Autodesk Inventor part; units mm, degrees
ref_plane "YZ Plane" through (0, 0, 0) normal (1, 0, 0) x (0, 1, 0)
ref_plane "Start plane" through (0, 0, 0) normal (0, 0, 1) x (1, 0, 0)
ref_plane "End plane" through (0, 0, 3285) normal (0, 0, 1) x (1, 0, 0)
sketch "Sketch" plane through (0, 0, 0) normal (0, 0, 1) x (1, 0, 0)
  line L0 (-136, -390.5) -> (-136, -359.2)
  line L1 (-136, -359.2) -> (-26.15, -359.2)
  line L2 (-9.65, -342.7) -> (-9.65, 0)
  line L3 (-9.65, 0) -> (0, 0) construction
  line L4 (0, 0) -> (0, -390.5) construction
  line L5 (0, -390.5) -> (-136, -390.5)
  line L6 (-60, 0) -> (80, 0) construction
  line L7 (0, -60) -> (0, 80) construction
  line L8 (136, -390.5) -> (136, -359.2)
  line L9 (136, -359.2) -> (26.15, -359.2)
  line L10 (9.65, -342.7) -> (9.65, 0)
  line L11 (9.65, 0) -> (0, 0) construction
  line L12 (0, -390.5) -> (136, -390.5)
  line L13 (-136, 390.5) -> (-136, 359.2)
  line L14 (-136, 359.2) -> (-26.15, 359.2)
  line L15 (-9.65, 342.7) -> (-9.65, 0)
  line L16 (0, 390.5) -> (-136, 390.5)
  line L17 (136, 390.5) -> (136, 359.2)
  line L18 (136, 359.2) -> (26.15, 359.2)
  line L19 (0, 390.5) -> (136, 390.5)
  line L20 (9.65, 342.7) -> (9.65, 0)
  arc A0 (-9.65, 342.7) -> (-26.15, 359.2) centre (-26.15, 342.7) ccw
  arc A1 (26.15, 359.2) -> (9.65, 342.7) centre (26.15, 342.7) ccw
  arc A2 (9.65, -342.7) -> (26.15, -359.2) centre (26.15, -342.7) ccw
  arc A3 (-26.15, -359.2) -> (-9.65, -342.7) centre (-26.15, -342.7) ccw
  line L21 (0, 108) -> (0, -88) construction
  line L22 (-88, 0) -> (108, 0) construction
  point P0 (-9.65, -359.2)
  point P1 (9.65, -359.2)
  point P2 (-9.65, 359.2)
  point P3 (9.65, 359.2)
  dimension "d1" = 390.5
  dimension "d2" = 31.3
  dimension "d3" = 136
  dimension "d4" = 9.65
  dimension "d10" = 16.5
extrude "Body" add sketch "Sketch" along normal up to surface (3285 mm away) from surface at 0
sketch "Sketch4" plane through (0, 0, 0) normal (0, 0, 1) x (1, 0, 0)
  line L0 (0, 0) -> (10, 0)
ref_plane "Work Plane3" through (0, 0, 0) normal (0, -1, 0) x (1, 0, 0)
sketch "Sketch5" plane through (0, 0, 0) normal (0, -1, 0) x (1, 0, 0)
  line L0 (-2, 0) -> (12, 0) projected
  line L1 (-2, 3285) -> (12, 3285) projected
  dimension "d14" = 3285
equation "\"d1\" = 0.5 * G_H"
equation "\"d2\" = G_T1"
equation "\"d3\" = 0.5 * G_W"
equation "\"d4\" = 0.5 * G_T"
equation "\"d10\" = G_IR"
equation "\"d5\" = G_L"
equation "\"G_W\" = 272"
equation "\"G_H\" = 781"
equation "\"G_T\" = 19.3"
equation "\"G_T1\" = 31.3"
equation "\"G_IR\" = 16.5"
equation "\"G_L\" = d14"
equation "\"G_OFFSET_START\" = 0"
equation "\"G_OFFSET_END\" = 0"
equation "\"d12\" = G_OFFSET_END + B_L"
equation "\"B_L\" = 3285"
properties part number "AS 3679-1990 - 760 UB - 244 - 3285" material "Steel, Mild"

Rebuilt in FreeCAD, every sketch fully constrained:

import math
import FreeCAD as App
import Part
import Sketcher
from FreeCAD import Vector
Q = App.Units.Quantity

doc = App.newDocument("Part")
body = doc.addObject("PartDesign::Body", "Body")

# Sketch on XY plane
sketch1 = body.newObject("Sketcher::SketchObject", "Sketch")
sketch1.AttachmentSupport = (doc.getObject("XY_Plane"), [""])
sketch1.MapMode = "FlatFace"
sketch1.addGeometry([
    Part.LineSegment(Vector(-136, -359.2, 0), Vector(-136, -390.5, 0)),  # 0
    Part.LineSegment(Vector(-136, -390.5, 0), Vector(136, -390.5, 0)),  # 1
    Part.LineSegment(Vector(136, -390.5, 0), Vector(136, -359.2, 0)),  # 2
    Part.LineSegment(Vector(136, -359.2, 0), Vector(26.15, -359.2, 0)),  # 3
    Part.ArcOfCircle(Part.Circle(Vector(26.15, -342.7, 0), Vector(0, 0, 1), 16.5), math.radians(180), math.radians(270)),  # 4
    Part.LineSegment(Vector(9.65, -342.7, 0), Vector(9.65, 342.7, 0)),  # 5
    Part.ArcOfCircle(Part.Circle(Vector(26.15, 342.7, 0), Vector(0, 0, 1), 16.5), math.radians(90), math.radians(180)),  # 6
    Part.LineSegment(Vector(26.15, 359.2, 0), Vector(136, 359.2, 0)),  # 7
    Part.LineSegment(Vector(136, 359.2, 0), Vector(136, 390.5, 0)),  # 8
    Part.LineSegment(Vector(136, 390.5, 0), Vector(-136, 390.5, 0)),  # 9
    Part.LineSegment(Vector(-136, 390.5, 0), Vector(-136, 359.2, 0)),  # 10
    Part.LineSegment(Vector(-136, 359.2, 0), Vector(-26.15, 359.2, 0)),  # 11
    Part.ArcOfCircle(Part.Circle(Vector(-26.15, 342.7, 0), Vector(0, 0, 1), 16.5), math.radians(0), math.radians(90)),  # 12
    Part.LineSegment(Vector(-9.65, 342.7, 0), Vector(-9.65, -342.7, 0)),  # 13
    Part.ArcOfCircle(Part.Circle(Vector(-26.15, -342.7, 0), Vector(0, 0, 1), 16.5), math.radians(-90), math.radians(0)),  # 14
    Part.LineSegment(Vector(-26.15, -359.2, 0), Vector(-136, -359.2, 0)),  # 15
], False)
sketch1.addConstraint([
    Sketcher.Constraint("Coincident", 0, 2, 1, 1),
    Sketcher.Constraint("Coincident", 1, 2, 2, 1),
    Sketcher.Constraint("Coincident", 2, 2, 3, 1),
    Sketcher.Constraint("Tangent", 3, 2, 4, 2),
    Sketcher.Constraint("Tangent", 4, 1, 5, 1),
    Sketcher.Constraint("Tangent", 5, 2, 6, 2),
    Sketcher.Constraint("Tangent", 6, 1, 7, 1),
    Sketcher.Constraint("Coincident", 7, 2, 8, 1),
    Sketcher.Constraint("Coincident", 8, 2, 9, 1),
    Sketcher.Constraint("Coincident", 9, 2, 10, 1),
    Sketcher.Constraint("Coincident", 10, 2, 11, 1),
    Sketcher.Constraint("Tangent", 11, 2, 12, 2),
    Sketcher.Constraint("Tangent", 12, 1, 13, 1),
    Sketcher.Constraint("Tangent", 13, 2, 14, 2),
    Sketcher.Constraint("Tangent", 14, 1, 15, 1),
    Sketcher.Constraint("Coincident", 15, 2, 0, 1),
    Sketcher.Constraint("Vertical", 0),
    Sketcher.Constraint("Horizontal", 1),
    Sketcher.Constraint("Vertical", 2),
    Sketcher.Constraint("Horizontal", 3),
    Sketcher.Constraint("Vertical", 5),
    Sketcher.Constraint("Horizontal", 7),
    Sketcher.Constraint("Vertical", 8),
    Sketcher.Constraint("Horizontal", 9),
    Sketcher.Constraint("Vertical", 10),
    Sketcher.Constraint("Horizontal", 11),
    Sketcher.Constraint("Vertical", 13),
    Sketcher.Constraint("Horizontal", 15),
    Sketcher.Constraint("Equal", 4, 6),
    Sketcher.Constraint("Equal", 6, 12),
    Sketcher.Constraint("Equal", 12, 14),
    Sketcher.Constraint("Symmetric", 4, 3, 12, 3, -1, 1),
    Sketcher.Constraint("Symmetric", 0, 2, 8, 2, -1, 1),
    Sketcher.Constraint("Symmetric", 7, 2, 10, 2, -2),
    Sketcher.Constraint("Symmetric", 2, 2, 15, 2, -2),
    Sketcher.Constraint("Radius", 4, Q("16.5 mm")),
    Sketcher.Constraint("DistanceY", 0, 2, 0, 1, Q("31.3 mm")),
    Sketcher.Constraint("DistanceX", 0, 2, -1, 1, Q("136 mm")),
    Sketcher.Constraint("DistanceY", 0, 2, -1, 1, Q("390.5 mm")),
    Sketcher.Constraint("DistanceX", -1, 1, 4, 1, Q("9.65 mm")),
])
pad1 = body.newObject("PartDesign::Pad", "Pad")
pad1.Profile = sketch1
pad1.Length = 3285

doc.recompute()
